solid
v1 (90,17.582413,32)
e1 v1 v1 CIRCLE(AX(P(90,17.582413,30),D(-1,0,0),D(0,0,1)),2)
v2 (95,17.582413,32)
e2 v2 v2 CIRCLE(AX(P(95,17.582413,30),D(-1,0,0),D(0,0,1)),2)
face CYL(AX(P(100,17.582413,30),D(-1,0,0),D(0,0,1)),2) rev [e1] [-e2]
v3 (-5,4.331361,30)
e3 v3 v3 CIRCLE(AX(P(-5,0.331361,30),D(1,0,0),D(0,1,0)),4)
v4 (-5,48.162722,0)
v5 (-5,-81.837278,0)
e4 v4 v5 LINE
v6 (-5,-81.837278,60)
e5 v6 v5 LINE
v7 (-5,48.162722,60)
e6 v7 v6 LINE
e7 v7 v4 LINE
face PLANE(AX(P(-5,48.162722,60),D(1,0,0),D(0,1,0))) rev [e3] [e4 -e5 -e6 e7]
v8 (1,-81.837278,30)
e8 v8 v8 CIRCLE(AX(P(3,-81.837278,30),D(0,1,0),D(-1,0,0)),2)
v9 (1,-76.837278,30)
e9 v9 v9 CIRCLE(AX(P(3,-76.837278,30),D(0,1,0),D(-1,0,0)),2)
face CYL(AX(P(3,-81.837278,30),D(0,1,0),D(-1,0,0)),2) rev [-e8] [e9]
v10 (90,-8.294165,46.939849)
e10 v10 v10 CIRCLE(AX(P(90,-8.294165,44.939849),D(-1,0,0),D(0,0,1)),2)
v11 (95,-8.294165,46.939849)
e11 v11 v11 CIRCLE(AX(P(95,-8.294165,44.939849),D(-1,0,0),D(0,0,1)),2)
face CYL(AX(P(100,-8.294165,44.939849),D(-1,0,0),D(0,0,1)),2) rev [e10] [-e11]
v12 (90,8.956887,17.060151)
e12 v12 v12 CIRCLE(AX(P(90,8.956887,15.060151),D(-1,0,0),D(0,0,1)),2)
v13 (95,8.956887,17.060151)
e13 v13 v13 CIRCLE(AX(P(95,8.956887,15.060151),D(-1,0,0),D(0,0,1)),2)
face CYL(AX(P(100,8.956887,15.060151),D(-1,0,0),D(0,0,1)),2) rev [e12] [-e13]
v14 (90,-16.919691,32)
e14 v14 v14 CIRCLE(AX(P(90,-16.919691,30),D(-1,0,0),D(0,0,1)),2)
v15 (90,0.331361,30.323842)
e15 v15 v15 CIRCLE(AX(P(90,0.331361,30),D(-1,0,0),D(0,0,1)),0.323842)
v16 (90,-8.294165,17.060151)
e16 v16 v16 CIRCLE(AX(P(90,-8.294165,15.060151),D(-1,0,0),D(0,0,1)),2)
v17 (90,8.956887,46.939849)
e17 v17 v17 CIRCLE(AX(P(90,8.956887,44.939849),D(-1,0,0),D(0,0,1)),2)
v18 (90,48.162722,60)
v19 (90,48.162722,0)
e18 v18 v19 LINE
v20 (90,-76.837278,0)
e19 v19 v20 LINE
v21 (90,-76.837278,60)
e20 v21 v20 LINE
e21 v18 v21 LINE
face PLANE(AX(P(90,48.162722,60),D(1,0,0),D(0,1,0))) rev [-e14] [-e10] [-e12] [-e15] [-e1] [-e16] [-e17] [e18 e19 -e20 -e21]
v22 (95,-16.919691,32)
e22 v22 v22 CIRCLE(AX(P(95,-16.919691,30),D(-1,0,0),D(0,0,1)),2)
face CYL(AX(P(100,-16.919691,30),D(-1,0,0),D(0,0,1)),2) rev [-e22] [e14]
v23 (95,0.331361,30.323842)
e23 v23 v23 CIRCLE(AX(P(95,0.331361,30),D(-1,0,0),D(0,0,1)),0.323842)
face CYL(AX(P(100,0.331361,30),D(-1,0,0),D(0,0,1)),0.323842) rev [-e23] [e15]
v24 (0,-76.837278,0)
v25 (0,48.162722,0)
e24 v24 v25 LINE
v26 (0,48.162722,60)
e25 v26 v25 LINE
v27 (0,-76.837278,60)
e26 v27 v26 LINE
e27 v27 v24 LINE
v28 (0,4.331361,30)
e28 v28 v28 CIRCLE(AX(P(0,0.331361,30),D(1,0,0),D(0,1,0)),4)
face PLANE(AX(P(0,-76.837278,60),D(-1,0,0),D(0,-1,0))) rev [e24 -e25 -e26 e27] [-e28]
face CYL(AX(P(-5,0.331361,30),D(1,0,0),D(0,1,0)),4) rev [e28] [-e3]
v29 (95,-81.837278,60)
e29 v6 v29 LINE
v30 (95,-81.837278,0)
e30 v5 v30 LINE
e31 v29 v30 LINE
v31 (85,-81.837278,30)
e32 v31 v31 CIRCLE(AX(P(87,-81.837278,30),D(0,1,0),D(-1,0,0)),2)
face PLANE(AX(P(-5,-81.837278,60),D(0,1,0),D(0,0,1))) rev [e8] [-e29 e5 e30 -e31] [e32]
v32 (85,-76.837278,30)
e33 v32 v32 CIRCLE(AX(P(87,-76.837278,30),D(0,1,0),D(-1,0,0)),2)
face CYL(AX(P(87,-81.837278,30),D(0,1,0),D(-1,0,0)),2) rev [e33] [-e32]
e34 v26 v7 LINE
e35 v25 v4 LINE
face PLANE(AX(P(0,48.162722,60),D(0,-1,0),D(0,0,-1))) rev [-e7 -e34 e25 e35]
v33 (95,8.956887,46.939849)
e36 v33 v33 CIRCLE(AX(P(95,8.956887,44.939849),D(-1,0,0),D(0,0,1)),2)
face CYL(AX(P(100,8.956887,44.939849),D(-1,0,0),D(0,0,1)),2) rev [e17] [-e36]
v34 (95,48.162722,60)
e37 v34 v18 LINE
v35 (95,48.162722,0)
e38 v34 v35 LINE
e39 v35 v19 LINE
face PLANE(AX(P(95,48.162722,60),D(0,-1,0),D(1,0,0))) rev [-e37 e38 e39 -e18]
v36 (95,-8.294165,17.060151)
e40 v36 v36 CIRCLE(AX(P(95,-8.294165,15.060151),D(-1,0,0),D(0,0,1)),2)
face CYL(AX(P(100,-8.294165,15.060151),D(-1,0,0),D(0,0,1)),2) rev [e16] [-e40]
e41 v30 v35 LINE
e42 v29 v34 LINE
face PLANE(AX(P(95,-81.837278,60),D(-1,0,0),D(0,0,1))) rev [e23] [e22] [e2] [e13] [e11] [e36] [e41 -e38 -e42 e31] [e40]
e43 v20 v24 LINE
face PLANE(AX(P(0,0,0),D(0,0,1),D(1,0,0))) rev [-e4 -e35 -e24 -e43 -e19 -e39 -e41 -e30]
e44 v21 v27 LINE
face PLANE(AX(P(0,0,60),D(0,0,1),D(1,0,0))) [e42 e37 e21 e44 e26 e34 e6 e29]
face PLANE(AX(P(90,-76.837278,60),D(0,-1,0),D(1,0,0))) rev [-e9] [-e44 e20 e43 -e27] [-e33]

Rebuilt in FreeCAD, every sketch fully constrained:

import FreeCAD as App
import Part
import Sketcher


def add_polygon(sketch, points):
    """Adds a closed chain of lines whose ends are joined by coincident constraints."""
    first, n = sketch.GeometryCount, len(points)
    for a, b in zip(points, points[1:] + points[:1]):
        sketch.addGeometry(Part.LineSegment(App.Vector(*a, 0), App.Vector(*b, 0)), False)
    for i in range(n):
        sketch.addConstraint(Sketcher.Constraint("Coincident", first + i, 2, first + (i + 1) % n, 1))

doc = App.newDocument("Part")
params = doc.addObject("Spreadsheet::Sheet", "Params")
for row, (alias, value) in enumerate([
    ("sketch1_width", "5 mm"),
    ("sketch1_width2", "90 mm"),
    ("sketch1_height", "130 mm"),
    ("sketch1_height2", "125 mm"),
    ("pad1_length", "60 mm"),
    ("sketch2_diameter", "4 mm"),
    ("sketch3_diameter", "4 mm"),
    ("pocket2_length", "10 mm"),
    ("sketch4_diameter", "8 mm"),
], start=1):
    params.set(f"A{row}", alias)
    params.set(f"B{row}", "=" + value)
    params.setAlias(f"B{row}", alias)

body = doc.addObject("PartDesign::Body", "Body")

# Sketch on XY plane
sketch1 = body.newObject("Sketcher::SketchObject", "Sketch")
sketch1.AttachmentSupport = (doc.getObject("XY_Plane"), [""])
sketch1.MapMode = "FlatFace"
add_polygon(sketch1, [(95, -82), (95, 48), (90, 48), (90, -77), (0, -77), (0, 48), (-5, 48), (-5, -82)])  # lines 0-7
sketch1.addConstraint(Sketcher.Constraint("Vertical", 0))
sketch1.addConstraint(Sketcher.Constraint("Horizontal", 1))
sketch1.addConstraint(Sketcher.Constraint("Vertical", 2))
sketch1.addConstraint(Sketcher.Constraint("Horizontal", 3))
sketch1.addConstraint(Sketcher.Constraint("Vertical", 4))
sketch1.addConstraint(Sketcher.Constraint("Horizontal", 5))
sketch1.addConstraint(Sketcher.Constraint("Vertical", 6))
sketch1.addConstraint(Sketcher.Constraint("Horizontal", 7))
sketch1.addConstraint(Sketcher.Constraint("PointOnObject", 3, 2, -2))
sketch1.addConstraint(Sketcher.Constraint("Horizontal", 1, 2, 4, 2))
sketch1.addConstraint(Sketcher.Constraint("Equal", 1, 5))
sketch1.addConstraint(Sketcher.Constraint("DistanceX", 1, 2, 1, 1, 5.0))
sketch1.addConstraint(Sketcher.Constraint("DistanceX", 3, 2, 3, 1, 90.0))
sketch1.addConstraint(Sketcher.Constraint("DistanceY", 0, 1, 0, 2, 130.0))
sketch1.addConstraint(Sketcher.Constraint("DistanceY", 2, 2, 2, 1, 125.0))
sketch1.addConstraint(Sketcher.Constraint("DistanceY", -1, 1, 0, 2, 48.162722))
sketch1.setExpression("Constraints[19]", "Params.sketch1_width")
sketch1.setExpression("Constraints[20]", "Params.sketch1_width2")
sketch1.setExpression("Constraints[21]", "Params.sketch1_height")
sketch1.setExpression("Constraints[22]", "Params.sketch1_height2")
pad1 = body.newObject("PartDesign::Pad", "Pad")
pad1.Profile = sketch1
pad1.setExpression("Length", "Params.pad1_length")

# Sketch on XZ plane
sketch2 = body.newObject("Sketcher::SketchObject", "Sketch001")
sketch2.AttachmentSupport = (doc.getObject("XZ_Plane"), [""])
sketch2.MapMode = "FlatFace"
sketch2.AttachmentOffset = App.Placement(App.Vector(0, 0, 76.837278), App.Rotation())
sketch2.addGeometry(Part.Circle(App.Vector(3, 30, 0), App.Vector(0, 0, 1), 2), False)
sketch2.addGeometry(Part.Circle(App.Vector(87, 30, 0), App.Vector(0, 0, 1), 2), False)
sketch2.addConstraint(Sketcher.Constraint("Equal", 0, 1))
sketch2.addConstraint(Sketcher.Constraint("Horizontal", 0, 3, 1, 3))
sketch2.addConstraint(Sketcher.Constraint("Diameter", 0, 4.0))
sketch2.addConstraint(Sketcher.Constraint("DistanceX", -1, 1, 0, 3, 3.0))
sketch2.addConstraint(Sketcher.Constraint("DistanceY", -1, 1, 0, 3, 30.0))
sketch2.addConstraint(Sketcher.Constraint("DistanceX", -1, 1, 1, 3, 87.0))
sketch2.setExpression("Constraints[2]", "Params.sketch2_diameter")
pocket1 = body.newObject("PartDesign::Pocket", "Pocket")
pocket1.Profile = sketch2
pocket1.Type = "ThroughAll"
pocket1.Reversed = True

# Sketch on YZ plane
sketch3 = body.newObject("Sketcher::SketchObject", "Sketch002")
sketch3.AttachmentSupport = (doc.getObject("YZ_Plane"), [""])
sketch3.MapMode = "FlatFace"
sketch3.AttachmentOffset = App.Placement(App.Vector(0, 0, 90), App.Rotation())
sketch3.addGeometry(Part.Circle(App.Vector(17.58, 30, 0), App.Vector(0, 0, 1), 2), False)
sketch3.addGeometry(Part.Circle(App.Vector(8.96, 15.06, 0), App.Vector(0, 0, 1), 2), False)
sketch3.addGeometry(Part.Circle(App.Vector(-8.29, 15.06, 0), App.Vector(0, 0, 1), 2), False)
sketch3.addGeometry(Part.Circle(App.Vector(-16.92, 30, 0), App.Vector(0, 0, 1), 2), False)
sketch3.addGeometry(Part.Circle(App.Vector(-8.29, 44.94, 0), App.Vector(0, 0, 1), 2), False)
sketch3.addGeometry(Part.Circle(App.Vector(8.96, 44.94, 0), App.Vector(0, 0, 1), 2), False)
sketch3.addGeometry(Part.Circle(App.Vector(0.33, 30, 0), App.Vector(0, 0, 1), 0.32), False)
sketch3.addConstraint(Sketcher.Constraint("Equal", 0, 1))
sketch3.addConstraint(Sketcher.Constraint("Equal", 1, 2))
sketch3.addConstraint(Sketcher.Constraint("Equal", 2, 3))
sketch3.addConstraint(Sketcher.Constraint("Equal", 3, 4))
sketch3.addConstraint(Sketcher.Constraint("Equal", 4, 5))
sketch3.addConstraint(Sketcher.Constraint("Horizontal", 1, 3, 2, 3))
sketch3.addConstraint(Sketcher.Constraint("Horizontal", 0, 3, 3, 3))
sketch3.addConstraint(Sketcher.Constraint("Horizontal", 4, 3, 5, 3))
sketch3.addConstraint(Sketcher.Constraint("Horizontal", 3, 3, 6, 3))
sketch3.addConstraint(Sketcher.Constraint("Vertical", 2, 3, 4, 3))
sketch3.addConstraint(Sketcher.Constraint("Vertical", 1, 3, 5, 3))
sketch3.addConstraint(Sketcher.Constraint("Diameter", 0, 4.0))
sketch3.addConstraint(Sketcher.Constraint("DistanceY", -1, 1, 0, 3, 30.0))
sketch3.addConstraint(Sketcher.Constraint("Diameter", 6, 0.647684))
sketch3.addConstraint(Sketcher.Constraint("DistanceY", 2, 3, 4, 3, 29.879699))
sketch3.addConstraint(Sketcher.Constraint("DistanceY", -1, 1, 1, 3, 15.060151))
sketch3.addConstraint(Sketcher.Constraint("DistanceX", 3, 3, -1, 1, 16.919691))
sketch3.addConstraint(Sketcher.Constraint("DistanceX", -1, 1, 6, 3, 0.331361))
sketch3.addConstraint(Sketcher.Constraint("DistanceX", 2, 3, 0, 3, 25.876578))
sketch3.addConstraint(Sketcher.Constraint("DistanceX", 3, 3, 1, 3, 25.876578))
sketch3.addConstraint(Sketcher.Constraint("DistanceX", -1, 1, 0, 3, 17.582413))
sketch3.setExpression("Constraints[11]", "Params.sketch3_diameter")
pocket2 = body.newObject("PartDesign::Pocket", "Pocket001")
pocket2.Profile = sketch3
pocket2.setExpression("Length", "Params.pocket2_length")
pocket2.Reversed = True

# Sketch on YZ plane
sketch4 = body.newObject("Sketcher::SketchObject", "Sketch003")
sketch4.AttachmentSupport = (doc.getObject("YZ_Plane"), [""])
sketch4.MapMode = "FlatFace"
sketch4.addGeometry(Part.Circle(App.Vector(0.3, 30, 0), App.Vector(0, 0, 1), 4), False)
sketch4.addConstraint(Sketcher.Constraint("Diameter", 0, 8.0))
sketch4.addConstraint(Sketcher.Constraint("DistanceY", -1, 1, 0, 3, 30.0))
sketch4.addConstraint(Sketcher.Constraint("DistanceX", -1, 1, 0, 3, 0.331361))
sketch4.setExpression("Constraints[0]", "Params.sketch4_diameter")
pocket3 = body.newObject("PartDesign::Pocket", "Pocket002")
pocket3.Profile = sketch4
pocket3.Type = "ThroughAll"

doc.recompute()
